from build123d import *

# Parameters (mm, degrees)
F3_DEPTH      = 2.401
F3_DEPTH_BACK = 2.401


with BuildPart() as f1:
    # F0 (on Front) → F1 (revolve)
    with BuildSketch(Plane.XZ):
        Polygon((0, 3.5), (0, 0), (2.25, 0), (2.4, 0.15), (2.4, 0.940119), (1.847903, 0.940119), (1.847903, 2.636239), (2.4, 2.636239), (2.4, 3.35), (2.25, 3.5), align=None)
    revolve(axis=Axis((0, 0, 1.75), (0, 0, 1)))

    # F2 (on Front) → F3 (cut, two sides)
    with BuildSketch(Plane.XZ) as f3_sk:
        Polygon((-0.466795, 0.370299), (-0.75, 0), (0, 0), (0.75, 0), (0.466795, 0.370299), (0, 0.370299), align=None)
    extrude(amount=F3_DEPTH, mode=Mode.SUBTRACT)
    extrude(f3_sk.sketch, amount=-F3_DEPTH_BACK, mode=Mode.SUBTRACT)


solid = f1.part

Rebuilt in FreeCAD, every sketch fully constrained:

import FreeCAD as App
import Part
import Sketcher
from FreeCAD import Vector

doc = App.newDocument("Part")
params = doc.addObject("Spreadsheet::Sheet", "Params")
for row, (alias, value) in enumerate([
    ("sketch1_height", "3.5 mm"),
    ("sketch1_width", "2.25 mm"),
    ("revolution_angle", "360 deg"),
    ("sketch2_width", "1.5 mm"),
], start=1):
    params.set(f"A{row}", alias)
    params.set(f"B{row}", "=" + value)
    params.setAlias(f"B{row}", alias)

body = doc.addObject("PartDesign::Body", "Body")

sketch1 = body.newObject("Sketcher::SketchObject", "Sketch")
sketch1.AttachmentSupport = (doc.getObject("XZ_Plane"), [""])
sketch1.MapMode = "FlatFace"
sketch1.addGeometry([
    Part.LineSegment(Vector(0, 3.5, 0), Vector(0, 0, 0)),
    Part.LineSegment(Vector(0, 0, 0), Vector(2.25, 0, 0)),
    Part.LineSegment(Vector(2.25, 0, 0), Vector(2.4, 0.15, 0)),
    Part.LineSegment(Vector(2.4, 0.15, 0), Vector(2.4, 0.94, 0)),
    Part.LineSegment(Vector(2.4, 0.94, 0), Vector(1.85, 0.94, 0)),
    Part.LineSegment(Vector(1.85, 0.94, 0), Vector(1.85, 2.64, 0)),
    Part.LineSegment(Vector(1.85, 2.64, 0), Vector(2.4, 2.64, 0)),
    Part.LineSegment(Vector(2.4, 2.64, 0), Vector(2.4, 3.35, 0)),
    Part.LineSegment(Vector(2.4, 3.35, 0), Vector(2.25, 3.5, 0)),
    Part.LineSegment(Vector(2.25, 3.5, 0), Vector(0, 3.5, 0)),
], False)
sketch1.addConstraint([
    Sketcher.Constraint("Coincident", 0, 2, 1, 1),
    Sketcher.Constraint("Coincident", 1, 2, 2, 1),
    Sketcher.Constraint("Coincident", 2, 2, 3, 1),
    Sketcher.Constraint("Coincident", 3, 2, 4, 1),
    Sketcher.Constraint("Coincident", 4, 2, 5, 1),
    Sketcher.Constraint("Coincident", 5, 2, 6, 1),
    Sketcher.Constraint("Coincident", 6, 2, 7, 1),
    Sketcher.Constraint("Coincident", 7, 2, 8, 1),
    Sketcher.Constraint("Coincident", 8, 2, 9, 1),
    Sketcher.Constraint("Coincident", 9, 2, 0, 1),
    Sketcher.Constraint("Vertical", 0),
    Sketcher.Constraint("Horizontal", 1),
    Sketcher.Constraint("Vertical", 3),
    Sketcher.Constraint("Horizontal", 4),
    Sketcher.Constraint("Vertical", 5),
    Sketcher.Constraint("Horizontal", 6),
    Sketcher.Constraint("Vertical", 7),
    Sketcher.Constraint("Horizontal", 9),
    Sketcher.Constraint("Coincident", 0, 2, -1, 1),
    Sketcher.Constraint("Perpendicular", 2, 8),
    Sketcher.Constraint("Vertical", 3, 2, 6, 2),
    Sketcher.Constraint("Vertical", 1, 2, 8, 2),
    Sketcher.Constraint("Equal", 2, 8),
    Sketcher.Constraint("DistanceY", 0, 2, 0, 1, 3.5),
    Sketcher.Constraint("DistanceX", 1, 1, 1, 2, 2.25),
    Sketcher.Constraint("DistanceX", -1, 1, 2, 2, 2.4),
    Sketcher.Constraint("DistanceY", 3, 1, 3, 2, 0.790119),
    Sketcher.Constraint("DistanceY", 5, 1, 5, 2, 1.69612),
    Sketcher.Constraint("DistanceX", 4, 2, 4, 1, 0.552097),
])
sketch1.setExpression("Constraints[23]", "Params.sketch1_height")
sketch1.setExpression("Constraints[24]", "Params.sketch1_width")
revolution = body.newObject("PartDesign::Revolution", "Revolution")
revolution.Profile = sketch1
revolution.ReferenceAxis = (sketch1, ["V_Axis"])
revolution.setExpression("Angle", "Params.revolution_angle")

sketch2 = body.newObject("Sketcher::SketchObject", "Sketch001")
sketch2.AttachmentSupport = (doc.getObject("XZ_Plane"), [""])
sketch2.MapMode = "FlatFace"
sketch2.addGeometry([
    Part.LineSegment(Vector(-0.47, 0.37, 0), Vector(-0.75, 0, 0)),
    Part.LineSegment(Vector(-0.75, 0, 0), Vector(0.75, 0, 0)),
    Part.LineSegment(Vector(0.75, 0, 0), Vector(0.47, 0.37, 0)),
    Part.LineSegment(Vector(0.47, 0.37, 0), Vector(-0.47, 0.37, 0)),
], False)
sketch2.addConstraint([
    Sketcher.Constraint("Coincident", 0, 2, 1, 1),
    Sketcher.Constraint("Coincident", 1, 2, 2, 1),
    Sketcher.Constraint("Coincident", 2, 2, 3, 1),
    Sketcher.Constraint("Coincident", 3, 2, 0, 1),
    Sketcher.Constraint("Horizontal", 1),
    Sketcher.Constraint("Horizontal", 3),
    Sketcher.Constraint("Symmetric", 0, 2, 1, 2, -1, 1),
    Sketcher.Constraint("Equal", 0, 2),
    Sketcher.Constraint("DistanceX", 1, 1, 1, 2, 1.5),
    Sketcher.Constraint("DistanceX", 3, 2, 3, 1, 0.93359),
    Sketcher.Constraint("DistanceY", -1, 1, 2, 2, 0.370299),
])
sketch2.setExpression("Constraints[8]", "Params.sketch2_width")
pocket1 = body.newObject("PartDesign::Pocket", "Pocket")
pocket1.Profile = sketch2
pocket1.Type = "ThroughAll"
pocket1.Midplane = True

doc.recompute()
